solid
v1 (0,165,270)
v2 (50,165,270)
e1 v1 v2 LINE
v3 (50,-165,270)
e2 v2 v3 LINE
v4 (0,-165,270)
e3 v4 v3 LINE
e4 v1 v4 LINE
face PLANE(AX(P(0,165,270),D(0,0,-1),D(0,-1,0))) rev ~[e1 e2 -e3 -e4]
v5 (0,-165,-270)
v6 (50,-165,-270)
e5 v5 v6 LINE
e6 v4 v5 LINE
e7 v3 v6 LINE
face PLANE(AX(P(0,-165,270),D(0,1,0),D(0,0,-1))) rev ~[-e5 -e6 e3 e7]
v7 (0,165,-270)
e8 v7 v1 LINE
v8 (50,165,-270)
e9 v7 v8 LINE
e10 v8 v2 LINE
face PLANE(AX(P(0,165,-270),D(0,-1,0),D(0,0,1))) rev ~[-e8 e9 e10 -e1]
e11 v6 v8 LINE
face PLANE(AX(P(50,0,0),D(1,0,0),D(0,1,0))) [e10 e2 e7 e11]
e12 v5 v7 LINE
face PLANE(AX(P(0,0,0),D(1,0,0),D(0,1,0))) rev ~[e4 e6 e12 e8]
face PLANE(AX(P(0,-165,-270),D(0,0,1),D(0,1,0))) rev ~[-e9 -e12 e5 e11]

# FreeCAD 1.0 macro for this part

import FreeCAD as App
import Part
import Sketcher
from FreeCAD import Vector
Q = App.Units.Quantity

doc = App.newDocument("Part")
params = doc.addObject("Spreadsheet::Sheet", "Params")
for row, (alias, value) in enumerate([
    ("sketch1_width", "330 mm"),
    ("sketch1_height", "540 mm"),
    ("pad1_length", "50 mm"),
], start=1):
    params.set(f"A{row}", alias)
    params.set(f"B{row}", "=" + value)
    params.setAlias(f"B{row}", alias)

body = doc.addObject("PartDesign::Body", "Body")

sketch1 = doc.addObject("Sketcher::SketchObject", "Sketch")
body.addObject(sketch1)
sketch1.AttachmentSupport = (doc.YZ_Plane, [""])
sketch1.MapMode = "FlatFace"
sketch1.addGeometry([
    Part.LineSegment(Vector(165, -270, 0), Vector(165, 270, 0)),
    Part.LineSegment(Vector(165, 270, 0), Vector(-165, 270, 0)),
    Part.LineSegment(Vector(-165, 270, 0), Vector(-165, -270, 0)),
    Part.LineSegment(Vector(-165, -270, 0), Vector(165, -270, 0)),
], False)
sketch1.addConstraint([
    Sketcher.Constraint("Coincident", 0, 2, 1, 1),
    Sketcher.Constraint("Coincident", 1, 2, 2, 1),
    Sketcher.Constraint("Coincident", 2, 2, 3, 1),
    Sketcher.Constraint("Coincident", 3, 2, 0, 1),
    Sketcher.Constraint("Vertical", 0),
    Sketcher.Constraint("Horizontal", 1),
    Sketcher.Constraint("Vertical", 2),
    Sketcher.Constraint("Horizontal", 3),
    Sketcher.Constraint("Symmetric", 0, 2, 2, 2, -1, 1),
    Sketcher.Constraint("DistanceX", 1, 2, 1, 1, Q("330 mm")),
    Sketcher.Constraint("DistanceY", 0, 1, 0, 2, Q("540 mm")),
])
sketch1.setExpression("Constraints[9]", "Params.sketch1_width")
sketch1.setExpression("Constraints[10]", "Params.sketch1_height")
pad1 = doc.addObject("PartDesign::Pad", "Pad")
body.addObject(pad1)
pad1.Profile = sketch1
pad1.setExpression("Length", "Params.pad1_length")

doc.recompute()
